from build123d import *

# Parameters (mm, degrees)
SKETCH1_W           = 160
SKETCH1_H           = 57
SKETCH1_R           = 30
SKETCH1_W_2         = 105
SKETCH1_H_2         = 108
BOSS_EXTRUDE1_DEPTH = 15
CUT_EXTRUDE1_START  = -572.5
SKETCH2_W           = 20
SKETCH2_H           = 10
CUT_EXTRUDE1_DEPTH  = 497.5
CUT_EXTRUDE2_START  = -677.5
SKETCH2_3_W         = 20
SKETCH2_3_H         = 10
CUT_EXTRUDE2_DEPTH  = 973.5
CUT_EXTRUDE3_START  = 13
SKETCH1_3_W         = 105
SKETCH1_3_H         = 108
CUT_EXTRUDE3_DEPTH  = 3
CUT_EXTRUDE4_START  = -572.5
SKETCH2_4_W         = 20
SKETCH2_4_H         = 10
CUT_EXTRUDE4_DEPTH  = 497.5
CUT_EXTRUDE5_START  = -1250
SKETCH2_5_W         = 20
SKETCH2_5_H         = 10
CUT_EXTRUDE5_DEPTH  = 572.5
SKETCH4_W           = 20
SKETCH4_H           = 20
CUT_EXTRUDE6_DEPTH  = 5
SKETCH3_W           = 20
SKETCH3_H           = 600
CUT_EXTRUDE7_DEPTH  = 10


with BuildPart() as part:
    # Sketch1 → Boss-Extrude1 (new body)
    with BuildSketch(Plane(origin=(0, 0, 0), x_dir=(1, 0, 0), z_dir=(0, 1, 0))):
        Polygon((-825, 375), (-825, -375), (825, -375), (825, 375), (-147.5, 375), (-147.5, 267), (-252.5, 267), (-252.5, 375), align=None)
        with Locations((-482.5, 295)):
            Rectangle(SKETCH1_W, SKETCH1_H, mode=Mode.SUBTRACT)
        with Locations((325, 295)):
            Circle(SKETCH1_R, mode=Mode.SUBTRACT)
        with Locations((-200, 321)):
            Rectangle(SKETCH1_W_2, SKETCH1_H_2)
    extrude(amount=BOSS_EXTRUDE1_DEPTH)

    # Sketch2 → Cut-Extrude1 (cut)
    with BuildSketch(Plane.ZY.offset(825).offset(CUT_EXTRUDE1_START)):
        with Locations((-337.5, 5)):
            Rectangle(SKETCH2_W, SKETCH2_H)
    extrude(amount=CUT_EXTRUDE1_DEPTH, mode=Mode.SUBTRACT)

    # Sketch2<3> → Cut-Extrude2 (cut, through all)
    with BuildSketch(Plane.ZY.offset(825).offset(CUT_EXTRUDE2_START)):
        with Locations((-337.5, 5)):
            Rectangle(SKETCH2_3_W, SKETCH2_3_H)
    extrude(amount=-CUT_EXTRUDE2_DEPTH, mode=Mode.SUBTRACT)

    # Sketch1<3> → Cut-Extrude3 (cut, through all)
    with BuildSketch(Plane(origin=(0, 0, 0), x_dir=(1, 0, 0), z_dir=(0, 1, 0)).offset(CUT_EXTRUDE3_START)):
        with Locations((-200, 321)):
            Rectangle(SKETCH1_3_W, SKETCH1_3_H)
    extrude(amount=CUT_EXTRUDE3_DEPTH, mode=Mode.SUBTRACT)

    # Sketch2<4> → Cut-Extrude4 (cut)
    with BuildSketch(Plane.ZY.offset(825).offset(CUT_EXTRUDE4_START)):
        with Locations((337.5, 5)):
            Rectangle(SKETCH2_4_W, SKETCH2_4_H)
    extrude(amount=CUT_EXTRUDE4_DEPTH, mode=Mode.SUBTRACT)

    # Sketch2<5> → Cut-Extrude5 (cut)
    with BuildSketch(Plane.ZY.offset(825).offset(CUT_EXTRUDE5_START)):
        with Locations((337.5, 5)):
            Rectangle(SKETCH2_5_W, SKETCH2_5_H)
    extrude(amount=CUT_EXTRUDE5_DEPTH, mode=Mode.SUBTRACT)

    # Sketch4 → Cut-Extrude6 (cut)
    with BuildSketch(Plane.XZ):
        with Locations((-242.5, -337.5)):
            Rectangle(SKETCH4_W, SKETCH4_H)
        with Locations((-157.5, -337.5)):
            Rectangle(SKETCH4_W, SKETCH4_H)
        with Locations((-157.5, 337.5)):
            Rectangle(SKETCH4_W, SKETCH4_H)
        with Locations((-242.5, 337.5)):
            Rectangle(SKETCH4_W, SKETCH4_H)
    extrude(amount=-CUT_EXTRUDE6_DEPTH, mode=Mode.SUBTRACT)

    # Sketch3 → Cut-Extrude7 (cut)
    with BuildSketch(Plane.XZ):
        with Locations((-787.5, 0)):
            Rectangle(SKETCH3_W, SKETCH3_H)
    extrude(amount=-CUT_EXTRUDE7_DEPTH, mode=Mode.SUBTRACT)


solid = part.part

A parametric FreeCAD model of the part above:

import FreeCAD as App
import Part
import Sketcher

V = App.Vector
Q = App.Units.Quantity


def add_polygon(sketch, points):
    """Adds a closed chain of lines whose ends are joined by coincident constraints."""
    first, n = sketch.GeometryCount, len(points)
    for a, b in zip(points, points[1:] + points[:1]):
        sketch.addGeometry(Part.LineSegment(App.Vector(*a, 0), App.Vector(*b, 0)), False)
    for i in range(n):
        sketch.addConstraint(Sketcher.Constraint("Coincident", first + i, 2, first + (i + 1) % n, 1))

doc = App.newDocument("Part")
body = doc.addObject("PartDesign::Body", "Body")

# Sketch on XZ plane
sketch1 = body.newObject("Sketcher::SketchObject", "Sketch")
sketch1.AttachmentSupport = (doc.getObject("XZ_Plane"), [""])
sketch1.MapMode = "FlatFace"
add_polygon(sketch1, [(-825, -375), (-825, 375), (825, 375), (825, -375)])  # lines 0-3
add_polygon(sketch1, [(-402, -266), (-562, -266), (-562, -324), (-402, -324)])  # lines 4-7
sketch1.addGeometry(Part.Circle(V(325, -295, 0), V(0, 0, 1), 30), False)  # 8
sketch1.addConstraint([
    Sketcher.Constraint("Vertical", 0),
    Sketcher.Constraint("Horizontal", 1),
    Sketcher.Constraint("Vertical", 2),
    Sketcher.Constraint("Horizontal", 3),
    Sketcher.Constraint("Horizontal", 4),
    Sketcher.Constraint("Vertical", 5),
    Sketcher.Constraint("Horizontal", 6),
    Sketcher.Constraint("Vertical", 7),
    Sketcher.Constraint("Symmetric", 0, 2, 2, 2, -1, 1),
    Sketcher.Constraint("Diameter", 8, Q("60 mm")),
    Sketcher.Constraint("DistanceX", 1, 1, 1, 2, Q("1650 mm")),
    Sketcher.Constraint("DistanceX", 4, 2, 4, 1, Q("160 mm")),
    Sketcher.Constraint("DistanceY", 0, 1, 0, 2, Q("750 mm")),
    Sketcher.Constraint("DistanceY", 5, 2, 5, 1, Q("57 mm")),
    Sketcher.Constraint("DistanceX", -1, 1, 8, 3, Q("325 mm")),
    Sketcher.Constraint("DistanceY", 8, 3, -1, 1, Q("295 mm")),
    Sketcher.Constraint("DistanceX", 4, 2, -1, 1, Q("562.5 mm")),
    Sketcher.Constraint("DistanceY", 4, 2, -1, 1, Q("266.5 mm")),
])
pad1 = body.newObject("PartDesign::Pad", "Pad")
pad1.Profile = sketch1
pad1.Length = 15
pad1.Reversed = True

# Sketch on YZ plane
sketch2 = body.newObject("Sketcher::SketchObject", "Sketch001")
sketch2.AttachmentSupport = (doc.getObject("YZ_Plane"), [""])
sketch2.MapMode = "FlatFace"
sketch2.AttachmentOffset = App.Placement(V(0, 0, -252.5), App.Rotation())
add_polygon(sketch2, [(10, -348), (0, -348), (0, -328), (10, -328)])  # lines 0-3
sketch2.addConstraint([
    Sketcher.Constraint("Horizontal", 0),
    Sketcher.Constraint("Vertical", 1),
    Sketcher.Constraint("Horizontal", 2),
    Sketcher.Constraint("Vertical", 3),
    Sketcher.Constraint("PointOnObject", 0, 2, -2),
    Sketcher.Constraint("DistanceX", 0, 2, 0, 1, Q("10 mm")),
    Sketcher.Constraint("DistanceY", 1, 1, 1, 2, Q("20 mm")),
    Sketcher.Constraint("DistanceY", 0, 2, -1, 1, Q("347.5 mm")),
])
pocket1 = body.newObject("PartDesign::Pocket", "Pocket")
pocket1.Profile = sketch2
pocket1.Length = 497.5

# Sketch on YZ plane
sketch3 = body.newObject("Sketcher::SketchObject", "Sketch002")
sketch3.AttachmentSupport = (doc.getObject("YZ_Plane"), [""])
sketch3.MapMode = "FlatFace"
sketch3.AttachmentOffset = App.Placement(V(0, 0, -147.5), App.Rotation())
add_polygon(sketch3, [(10, -348), (0, -348), (0, -328), (10, -328)])  # lines 0-3
sketch3.addConstraint([
    Sketcher.Constraint("Horizontal", 0),
    Sketcher.Constraint("Vertical", 1),
    Sketcher.Constraint("Horizontal", 2),
    Sketcher.Constraint("Vertical", 3),
    Sketcher.Constraint("PointOnObject", 0, 2, -2),
    Sketcher.Constraint("DistanceX", 0, 2, 0, 1, Q("10 mm")),
    Sketcher.Constraint("DistanceY", 1, 1, 1, 2, Q("20 mm")),
    Sketcher.Constraint("DistanceY", 0, 2, -1, 1, Q("347.5 mm")),
])
pocket2 = body.newObject("PartDesign::Pocket", "Pocket001")
pocket2.Profile = sketch3
pocket2.Type = "ThroughAll"
pocket2.Reversed = True

# Sketch on XZ plane
sketch4 = body.newObject("Sketcher::SketchObject", "Sketch003")
sketch4.AttachmentSupport = (doc.getObject("XZ_Plane"), [""])
sketch4.MapMode = "FlatFace"
sketch4.AttachmentOffset = App.Placement(V(0, 0, -13), App.Rotation())
add_polygon(sketch4, [(-252, -375), (-252, -267), (-148, -267), (-148, -375)])  # lines 0-3
sketch4.addConstraint([
    Sketcher.Constraint("Vertical", 0),
    Sketcher.Constraint("Horizontal", 1),
    Sketcher.Constraint("Vertical", 2),
    Sketcher.Constraint("Horizontal", 3),
    Sketcher.Constraint("DistanceX", 1, 1, 1, 2, Q("105 mm")),
    Sketcher.Constraint("DistanceY", 0, 1, 0, 2, Q("108 mm")),
    Sketcher.Constraint("DistanceY", 0, 2, -1, 1, Q("267 mm")),
    Sketcher.Constraint("DistanceX", 0, 2, -1, 1, Q("252.5 mm")),
])
pocket3 = body.newObject("PartDesign::Pocket", "Pocket002")
pocket3.Profile = sketch4
pocket3.Type = "ThroughAll"

# Sketch on YZ plane
sketch5 = body.newObject("Sketcher::SketchObject", "Sketch004")
sketch5.AttachmentSupport = (doc.getObject("YZ_Plane"), [""])
sketch5.MapMode = "FlatFace"
sketch5.AttachmentOffset = App.Placement(V(0, 0, -252.5), App.Rotation())
add_polygon(sketch5, [(10, 328), (0, 328), (0, 348), (10, 348)])  # lines 0-3
sketch5.addConstraint([
    Sketcher.Constraint("Horizontal", 0),
    Sketcher.Constraint("Vertical", 1),
    Sketcher.Constraint("Horizontal", 2),
    Sketcher.Constraint("Vertical", 3),
    Sketcher.Constraint("PointOnObject", 0, 2, -2),
    Sketcher.Constraint("DistanceX", 0, 2, 0, 1, Q("10 mm")),
    Sketcher.Constraint("DistanceY", 1, 1, 1, 2, Q("20 mm")),
    Sketcher.Constraint("DistanceY", -1, 1, 0, 2, Q("327.5 mm")),
])
pocket4 = body.newObject("PartDesign::Pocket", "Pocket003")
pocket4.Profile = sketch5
pocket4.Length = 497.5

# Sketch on YZ plane
sketch6 = body.newObject("Sketcher::SketchObject", "Sketch005")
sketch6.AttachmentSupport = (doc.getObject("YZ_Plane"), [""])
sketch6.MapMode = "FlatFace"
sketch6.AttachmentOffset = App.Placement(V(0, 0, 425), App.Rotation())
add_polygon(sketch6, [(10, 328), (0, 328), (0, 348), (10, 348)])  # lines 0-3
sketch6.addConstraint([
    Sketcher.Constraint("Horizontal", 0),
    Sketcher.Constraint("Vertical", 1),
    Sketcher.Constraint("Horizontal", 2),
    Sketcher.Constraint("Vertical", 3),
    Sketcher.Constraint("PointOnObject", 0, 2, -2),
    Sketcher.Constraint("DistanceX", 0, 2, 0, 1, Q("10 mm")),
    Sketcher.Constraint("DistanceY", 1, 1, 1, 2, Q("20 mm")),
    Sketcher.Constraint("DistanceY", -1, 1, 0, 2, Q("327.5 mm")),
])
pocket5 = body.newObject("PartDesign::Pocket", "Pocket004")
pocket5.Profile = sketch6
pocket5.Length = 572.5

# Sketch on XZ plane
sketch7 = body.newObject("Sketcher::SketchObject", "Sketch006")
sketch7.AttachmentSupport = (doc.getObject("XZ_Plane"), [""])
sketch7.MapMode = "FlatFace"
add_polygon(sketch7, [(-252, -328), (-252, -348), (-232, -348), (-232, -328)])  # lines 0-3
add_polygon(sketch7, [(-168, -328), (-168, -348), (-148, -348), (-148, -328)])  # lines 4-7
add_polygon(sketch7, [(-168, 348), (-168, 328), (-148, 328), (-148, 348)])  # lines 8-11
add_polygon(sketch7, [(-252, 348), (-252, 328), (-232, 328), (-232, 348)])  # lines 12-15
sketch7.addConstraint([
    Sketcher.Constraint("Vertical", 0),
    Sketcher.Constraint("Horizontal", 1),
    Sketcher.Constraint("Vertical", 2),
    Sketcher.Constraint("Horizontal", 3),
    Sketcher.Constraint("Vertical", 4),
    Sketcher.Constraint("Horizontal", 5),
    Sketcher.Constraint("Vertical", 6),
    Sketcher.Constraint("Horizontal", 7),
    Sketcher.Constraint("Vertical", 8),
    Sketcher.Constraint("Horizontal", 9),
    Sketcher.Constraint("Vertical", 10),
    Sketcher.Constraint("Horizontal", 11),
    Sketcher.Constraint("Vertical", 12),
    Sketcher.Constraint("Horizontal", 13),
    Sketcher.Constraint("Vertical", 14),
    Sketcher.Constraint("Horizontal", 15),
    Sketcher.Constraint("Symmetric", 7, 2, 8, 2, -1),
    Sketcher.Constraint("Symmetric", 5, 2, 10, 2, -1),
    Sketcher.Constraint("Symmetric", 3, 2, 12, 2, -1),
    Sketcher.Constraint("Symmetric", 1, 2, 14, 2, -1),
    Sketcher.Constraint("Horizontal", 1, 2, 4, 2),
    Sketcher.Constraint("Horizontal", 3, 2, 6, 2),
    Sketcher.Constraint("Equal", 3, 5),
    Sketcher.Constraint("Equal", 15, 0),
    Sketcher.Constraint("DistanceX", 1, 1, 1, 2, Q("20 mm")),
    Sketcher.Constraint("DistanceX", 1, 2, 4, 2, Q("65 mm")),
    Sketcher.Constraint("DistanceY", 7, 2, 8, 2, Q("655 mm")),
    Sketcher.Constraint("DistanceX", 0, 2, -1, 1, Q("252.5 mm")),
])
pocket6 = body.newObject("PartDesign::Pocket", "Pocket005")
pocket6.Profile = sketch7
pocket6.Length = 5

# Sketch on XZ plane
sketch8 = body.newObject("Sketcher::SketchObject", "Sketch007")
sketch8.AttachmentSupport = (doc.getObject("XZ_Plane"), [""])
sketch8.MapMode = "FlatFace"
add_polygon(sketch8, [(-798, 300), (-798, -300), (-778, -300), (-778, 300)])  # lines 0-3
sketch8.addConstraint([
    Sketcher.Constraint("Vertical", 0),
    Sketcher.Constraint("Horizontal", 1),
    Sketcher.Constraint("Vertical", 2),
    Sketcher.Constraint("Horizontal", 3),
    Sketcher.Constraint("DistanceX", 1, 1, 1, 2, Q("20 mm")),
    Sketcher.Constraint("DistanceY", 0, 2, 0, 1, Q("600 mm")),
    Sketcher.Constraint("DistanceY", 0, 2, -1, 1, Q("300 mm")),
    Sketcher.Constraint("DistanceX", 0, 2, -1, 1, Q("797.5 mm")),
])
pocket7 = body.newObject("PartDesign::Pocket", "Pocket006")
pocket7.Profile = sketch8
pocket7.Length = 10

doc.recompute()
